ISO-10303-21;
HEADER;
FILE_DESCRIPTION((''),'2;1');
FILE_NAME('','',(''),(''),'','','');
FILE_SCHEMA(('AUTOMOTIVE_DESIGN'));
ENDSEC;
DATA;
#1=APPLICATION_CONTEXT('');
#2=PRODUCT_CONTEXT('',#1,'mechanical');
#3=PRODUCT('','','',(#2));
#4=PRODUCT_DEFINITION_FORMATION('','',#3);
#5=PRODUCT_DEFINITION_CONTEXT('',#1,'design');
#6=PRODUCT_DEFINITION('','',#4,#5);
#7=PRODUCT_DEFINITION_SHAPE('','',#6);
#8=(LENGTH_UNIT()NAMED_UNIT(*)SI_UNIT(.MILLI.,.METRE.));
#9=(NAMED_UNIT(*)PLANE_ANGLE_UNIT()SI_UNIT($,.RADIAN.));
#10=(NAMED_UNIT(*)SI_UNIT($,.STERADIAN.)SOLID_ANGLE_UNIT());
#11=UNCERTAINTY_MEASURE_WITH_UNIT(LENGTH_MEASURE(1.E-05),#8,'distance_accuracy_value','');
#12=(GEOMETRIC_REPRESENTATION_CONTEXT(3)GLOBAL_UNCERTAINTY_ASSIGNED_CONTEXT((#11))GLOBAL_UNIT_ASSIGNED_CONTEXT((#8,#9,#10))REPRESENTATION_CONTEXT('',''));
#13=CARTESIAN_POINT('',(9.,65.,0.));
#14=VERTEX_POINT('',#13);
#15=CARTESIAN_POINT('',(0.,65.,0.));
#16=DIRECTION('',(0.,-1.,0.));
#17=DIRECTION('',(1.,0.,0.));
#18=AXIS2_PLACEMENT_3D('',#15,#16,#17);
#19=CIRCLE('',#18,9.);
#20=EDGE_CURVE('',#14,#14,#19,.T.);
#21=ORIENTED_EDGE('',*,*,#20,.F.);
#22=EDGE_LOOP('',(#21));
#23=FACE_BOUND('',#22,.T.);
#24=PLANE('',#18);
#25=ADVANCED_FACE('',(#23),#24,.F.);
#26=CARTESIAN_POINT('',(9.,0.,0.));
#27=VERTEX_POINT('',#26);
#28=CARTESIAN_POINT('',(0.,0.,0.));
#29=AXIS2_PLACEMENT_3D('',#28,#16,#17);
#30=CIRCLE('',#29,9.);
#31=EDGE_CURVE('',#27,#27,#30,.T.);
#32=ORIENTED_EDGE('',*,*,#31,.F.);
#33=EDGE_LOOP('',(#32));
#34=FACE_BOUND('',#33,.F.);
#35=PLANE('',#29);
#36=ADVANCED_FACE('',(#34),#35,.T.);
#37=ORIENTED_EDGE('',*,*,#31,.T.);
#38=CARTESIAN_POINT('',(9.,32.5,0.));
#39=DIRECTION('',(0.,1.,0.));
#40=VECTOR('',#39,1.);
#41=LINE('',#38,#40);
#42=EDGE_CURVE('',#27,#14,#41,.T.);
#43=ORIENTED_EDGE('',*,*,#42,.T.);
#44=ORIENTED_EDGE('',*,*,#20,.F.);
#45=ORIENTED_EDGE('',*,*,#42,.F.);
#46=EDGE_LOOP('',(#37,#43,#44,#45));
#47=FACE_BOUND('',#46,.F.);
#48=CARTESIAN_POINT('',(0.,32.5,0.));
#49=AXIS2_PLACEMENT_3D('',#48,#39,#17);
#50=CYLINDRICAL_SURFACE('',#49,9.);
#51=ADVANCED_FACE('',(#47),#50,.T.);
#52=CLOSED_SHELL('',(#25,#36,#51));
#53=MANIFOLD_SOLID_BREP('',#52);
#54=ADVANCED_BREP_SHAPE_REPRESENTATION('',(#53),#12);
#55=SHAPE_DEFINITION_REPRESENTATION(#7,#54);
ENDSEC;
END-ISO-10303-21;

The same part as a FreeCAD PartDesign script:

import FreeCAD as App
import Part
import Sketcher
Q = App.Units.Quantity

doc = App.newDocument("Part")
body = doc.addObject("PartDesign::Body", "Body")

# Sketch on XY plane
sketch1 = doc.addObject("Sketcher::SketchObject", "Sketch")
body.addObject(sketch1)
sketch1.AttachmentSupport = (doc.XY_Plane, [""])
sketch1.MapMode = "FlatFace"
sketch1.addGeometry([
    Part.LineSegment(App.Vector(0, 65, 0), App.Vector(0, 0, 0)),
    Part.LineSegment(App.Vector(0, 0, 0), App.Vector(9, 0, 0)),
    Part.LineSegment(App.Vector(9, 0, 0), App.Vector(9, 65, 0)),
    Part.LineSegment(App.Vector(9, 65, 0), App.Vector(0, 65, 0)),
], False)
sketch1.addConstraint([
    Sketcher.Constraint("Coincident", 0, 2, 1, 1),
    Sketcher.Constraint("Coincident", 1, 2, 2, 1),
    Sketcher.Constraint("Coincident", 2, 2, 3, 1),
    Sketcher.Constraint("Coincident", 3, 2, 0, 1),
    Sketcher.Constraint("Vertical", 0),
    Sketcher.Constraint("Horizontal", 1),
    Sketcher.Constraint("Vertical", 2),
    Sketcher.Constraint("Horizontal", 3),
    Sketcher.Constraint("Coincident", 0, 2, -1, 1),
    Sketcher.Constraint("DistanceX", 1, 1, 1, 2, Q("9 mm")),
    Sketcher.Constraint("DistanceY", 0, 2, 0, 1, Q("65 mm")),
])
revolution = doc.addObject("PartDesign::Revolution", "Revolution")
body.addObject(revolution)
revolution.Profile = sketch1
revolution.ReferenceAxis = (sketch1, ["V_Axis"])
revolution.Angle = 360

doc.recompute()
